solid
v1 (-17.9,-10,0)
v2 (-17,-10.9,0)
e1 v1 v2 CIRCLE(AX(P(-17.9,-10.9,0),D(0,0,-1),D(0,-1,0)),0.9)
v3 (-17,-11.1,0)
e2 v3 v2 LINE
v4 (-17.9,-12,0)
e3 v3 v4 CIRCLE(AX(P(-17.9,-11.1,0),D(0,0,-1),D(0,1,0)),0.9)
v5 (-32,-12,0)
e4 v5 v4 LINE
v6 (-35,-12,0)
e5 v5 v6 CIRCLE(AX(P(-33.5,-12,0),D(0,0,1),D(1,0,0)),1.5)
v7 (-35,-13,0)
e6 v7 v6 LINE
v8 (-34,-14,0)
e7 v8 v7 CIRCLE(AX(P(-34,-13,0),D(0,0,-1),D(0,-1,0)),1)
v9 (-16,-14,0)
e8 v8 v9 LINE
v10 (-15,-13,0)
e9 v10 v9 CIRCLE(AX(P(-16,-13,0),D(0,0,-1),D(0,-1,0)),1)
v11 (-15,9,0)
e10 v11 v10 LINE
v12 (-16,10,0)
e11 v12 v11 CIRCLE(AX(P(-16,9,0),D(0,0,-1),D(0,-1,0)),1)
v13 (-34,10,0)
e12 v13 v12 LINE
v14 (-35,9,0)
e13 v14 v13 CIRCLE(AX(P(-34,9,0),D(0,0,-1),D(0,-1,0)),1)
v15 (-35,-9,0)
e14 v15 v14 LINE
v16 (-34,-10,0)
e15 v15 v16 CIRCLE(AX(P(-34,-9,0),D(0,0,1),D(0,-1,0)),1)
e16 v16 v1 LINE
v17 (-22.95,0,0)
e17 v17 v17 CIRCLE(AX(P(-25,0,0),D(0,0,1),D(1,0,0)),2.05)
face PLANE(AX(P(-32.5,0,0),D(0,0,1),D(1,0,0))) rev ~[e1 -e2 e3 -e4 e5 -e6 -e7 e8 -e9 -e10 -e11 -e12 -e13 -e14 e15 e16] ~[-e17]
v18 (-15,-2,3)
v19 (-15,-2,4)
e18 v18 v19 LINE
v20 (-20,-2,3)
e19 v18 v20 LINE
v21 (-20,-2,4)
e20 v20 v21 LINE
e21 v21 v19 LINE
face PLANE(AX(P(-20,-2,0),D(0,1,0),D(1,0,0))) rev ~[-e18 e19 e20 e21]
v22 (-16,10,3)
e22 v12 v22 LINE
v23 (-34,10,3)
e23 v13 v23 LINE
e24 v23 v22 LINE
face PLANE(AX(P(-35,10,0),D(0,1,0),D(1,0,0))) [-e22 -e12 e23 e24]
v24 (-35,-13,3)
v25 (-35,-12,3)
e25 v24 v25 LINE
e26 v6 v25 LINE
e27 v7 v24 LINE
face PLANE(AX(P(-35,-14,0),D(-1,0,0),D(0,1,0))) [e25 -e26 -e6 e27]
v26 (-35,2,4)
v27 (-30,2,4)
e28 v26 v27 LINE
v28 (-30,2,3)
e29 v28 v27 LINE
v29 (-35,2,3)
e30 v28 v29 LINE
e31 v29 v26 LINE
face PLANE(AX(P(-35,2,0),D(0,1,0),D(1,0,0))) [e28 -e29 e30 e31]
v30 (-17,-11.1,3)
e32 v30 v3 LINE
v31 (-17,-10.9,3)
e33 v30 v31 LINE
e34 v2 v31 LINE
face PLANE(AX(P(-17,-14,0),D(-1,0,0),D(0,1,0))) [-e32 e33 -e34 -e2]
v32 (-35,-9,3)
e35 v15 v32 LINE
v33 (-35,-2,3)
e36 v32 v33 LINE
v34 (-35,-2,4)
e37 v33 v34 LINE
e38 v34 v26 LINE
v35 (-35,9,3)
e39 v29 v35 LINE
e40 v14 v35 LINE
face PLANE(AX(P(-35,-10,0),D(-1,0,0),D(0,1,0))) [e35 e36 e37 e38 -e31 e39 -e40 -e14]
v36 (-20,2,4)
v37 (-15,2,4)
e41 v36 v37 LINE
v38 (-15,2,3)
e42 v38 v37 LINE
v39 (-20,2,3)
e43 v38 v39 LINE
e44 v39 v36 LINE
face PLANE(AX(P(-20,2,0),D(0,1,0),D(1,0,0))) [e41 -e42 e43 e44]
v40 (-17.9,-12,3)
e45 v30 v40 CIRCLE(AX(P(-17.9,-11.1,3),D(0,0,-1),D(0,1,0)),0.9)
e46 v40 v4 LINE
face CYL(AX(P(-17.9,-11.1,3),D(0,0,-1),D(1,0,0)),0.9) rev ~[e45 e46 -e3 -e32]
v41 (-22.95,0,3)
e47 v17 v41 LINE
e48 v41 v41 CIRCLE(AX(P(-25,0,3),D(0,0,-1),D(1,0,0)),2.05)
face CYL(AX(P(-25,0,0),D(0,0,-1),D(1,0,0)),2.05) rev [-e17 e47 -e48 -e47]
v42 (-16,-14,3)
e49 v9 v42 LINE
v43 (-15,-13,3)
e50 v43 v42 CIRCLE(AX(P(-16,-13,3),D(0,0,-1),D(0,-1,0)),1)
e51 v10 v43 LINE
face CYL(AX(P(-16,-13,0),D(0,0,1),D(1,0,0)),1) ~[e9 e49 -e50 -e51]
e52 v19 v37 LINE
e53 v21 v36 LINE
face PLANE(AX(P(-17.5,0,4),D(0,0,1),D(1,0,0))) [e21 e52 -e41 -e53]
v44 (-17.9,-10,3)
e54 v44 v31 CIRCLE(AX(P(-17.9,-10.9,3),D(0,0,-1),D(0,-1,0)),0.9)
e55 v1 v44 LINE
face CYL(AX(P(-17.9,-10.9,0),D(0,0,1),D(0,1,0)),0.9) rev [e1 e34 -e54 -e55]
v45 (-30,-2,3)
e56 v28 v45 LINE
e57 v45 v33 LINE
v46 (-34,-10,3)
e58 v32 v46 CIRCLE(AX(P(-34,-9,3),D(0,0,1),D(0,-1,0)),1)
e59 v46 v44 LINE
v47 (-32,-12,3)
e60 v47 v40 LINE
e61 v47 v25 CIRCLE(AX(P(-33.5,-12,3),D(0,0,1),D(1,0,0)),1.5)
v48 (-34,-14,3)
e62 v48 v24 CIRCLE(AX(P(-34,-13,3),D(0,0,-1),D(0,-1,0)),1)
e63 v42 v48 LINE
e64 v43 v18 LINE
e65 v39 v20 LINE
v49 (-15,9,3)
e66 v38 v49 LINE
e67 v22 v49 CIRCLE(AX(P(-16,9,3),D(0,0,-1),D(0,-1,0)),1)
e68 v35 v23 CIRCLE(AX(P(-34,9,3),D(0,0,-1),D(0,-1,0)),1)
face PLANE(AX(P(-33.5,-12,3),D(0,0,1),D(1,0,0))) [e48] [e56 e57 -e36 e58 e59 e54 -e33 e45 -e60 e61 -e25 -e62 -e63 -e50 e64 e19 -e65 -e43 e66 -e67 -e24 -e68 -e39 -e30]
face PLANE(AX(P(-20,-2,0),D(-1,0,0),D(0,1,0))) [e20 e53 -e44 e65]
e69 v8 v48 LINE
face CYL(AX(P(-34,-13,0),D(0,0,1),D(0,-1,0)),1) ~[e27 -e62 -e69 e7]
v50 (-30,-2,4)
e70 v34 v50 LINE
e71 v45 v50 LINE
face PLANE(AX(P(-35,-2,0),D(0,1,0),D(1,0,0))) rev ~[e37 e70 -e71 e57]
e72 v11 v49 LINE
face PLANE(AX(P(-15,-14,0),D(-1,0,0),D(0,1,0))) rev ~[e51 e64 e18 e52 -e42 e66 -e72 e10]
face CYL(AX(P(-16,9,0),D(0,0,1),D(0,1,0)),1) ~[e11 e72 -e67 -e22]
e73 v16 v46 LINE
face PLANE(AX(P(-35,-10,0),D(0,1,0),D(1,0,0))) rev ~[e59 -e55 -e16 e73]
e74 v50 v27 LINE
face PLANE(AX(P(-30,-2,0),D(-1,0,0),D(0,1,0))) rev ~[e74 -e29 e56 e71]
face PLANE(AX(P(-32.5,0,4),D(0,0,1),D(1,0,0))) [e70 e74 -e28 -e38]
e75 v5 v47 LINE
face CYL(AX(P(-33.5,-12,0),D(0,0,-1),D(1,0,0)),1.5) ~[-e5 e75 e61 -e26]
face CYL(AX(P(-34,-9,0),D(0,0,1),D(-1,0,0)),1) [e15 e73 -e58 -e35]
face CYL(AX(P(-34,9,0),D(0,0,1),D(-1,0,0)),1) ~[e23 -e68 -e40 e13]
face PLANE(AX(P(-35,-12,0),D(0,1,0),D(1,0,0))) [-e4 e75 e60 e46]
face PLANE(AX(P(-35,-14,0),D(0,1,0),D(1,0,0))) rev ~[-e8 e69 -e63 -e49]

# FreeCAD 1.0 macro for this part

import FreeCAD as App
import Part
import Sketcher

V = App.Vector


def edges_at(feature, points):
    """Names of the edges that pass closest to the given points."""
    edges = feature.Shape.Edges
    near = lambda p: min(range(len(edges)), key=lambda i: edges[i].distToShape(Part.Vertex(*p))[0])
    return sorted({f"Edge{near(p) + 1}" for p in points})

doc = App.newDocument("Part")
body = doc.addObject("PartDesign::Body", "Body")

# Sketch on XY plane
sketch1 = body.newObject("Sketcher::SketchObject", "Sketch")
sketch1.AttachmentSupport = (doc.getObject("XY_Plane"), [""])
sketch1.MapMode = "FlatFace"
sketch1.addGeometry(Part.Circle(V(0, 0, 0), V(0, 0, 1), 2.05), False)
sketch1.addConstraint(Sketcher.Constraint("Coincident", 0, 3, -1, 1))
sketch1.addConstraint(Sketcher.Constraint("Diameter", 0, 4.1))
pad1 = body.newObject("PartDesign::Pad", "Pad")
pad1.Profile = sketch1
pad1.Length = 10
body2 = doc.addObject("PartDesign::Body", "Body001")

# Sketch on XY plane
sketch2 = body2.newObject("Sketcher::SketchObject", "Sketch001")
sketch2.AttachmentSupport = (doc.getObject("XY_Plane001"), [""])
sketch2.MapMode = "FlatFace"
sketch2.addGeometry(Part.LineSegment(V(8, -10, 0), V(8, -14, 0)), False)
sketch2.addGeometry(Part.LineSegment(V(8, -14, 0), V(10, -14, 0)), False)
sketch2.addGeometry(Part.LineSegment(V(10, -14, 0), V(10, -10, 0)), False)
sketch2.addGeometry(Part.LineSegment(V(10, -10, 0), V(8, -10, 0)), False)
sketch2.addConstraint(Sketcher.Constraint("Coincident", 0, 2, 1, 1))
sketch2.addConstraint(Sketcher.Constraint("Coincident", 1, 2, 2, 1))
sketch2.addConstraint(Sketcher.Constraint("Coincident", 2, 2, 3, 1))
sketch2.addConstraint(Sketcher.Constraint("Coincident", 3, 2, 0, 1))
sketch2.addConstraint(Sketcher.Constraint("Vertical", 0))
sketch2.addConstraint(Sketcher.Constraint("Horizontal", 1))
sketch2.addConstraint(Sketcher.Constraint("Vertical", 2))
sketch2.addConstraint(Sketcher.Constraint("Horizontal", 3))
sketch2.addConstraint(Sketcher.Constraint("DistanceX", 1, 1, 1, 2, 2.0))
sketch2.addConstraint(Sketcher.Constraint("DistanceY", 0, 2, 0, 1, 4.0))
sketch2.addConstraint(Sketcher.Constraint("DistanceX", -1, 1, 0, 2, 8.0))
sketch2.addConstraint(Sketcher.Constraint("DistanceY", 0, 2, -1, 1, 14.0))
pad2 = body2.newObject("PartDesign::Pad", "Pad001")
pad2.Profile = sketch2
pad2.Length = 3
body3 = doc.addObject("PartDesign::Body", "Body002")

# Sketch on XY plane
sketch3 = body3.newObject("Sketcher::SketchObject", "Sketch002")
sketch3.AttachmentSupport = (doc.getObject("XY_Plane002"), [""])
sketch3.MapMode = "FlatFace"
sketch3.addGeometry(Part.LineSegment(V(-10, -12, 0), V(-10, -14, 0)), False)
sketch3.addGeometry(Part.LineSegment(V(-10, -14, 0), V(10, -14, 0)), False)
sketch3.addGeometry(Part.LineSegment(V(10, -14, 0), V(10, -12, 0)), False)
sketch3.addGeometry(Part.LineSegment(V(10, -12, 0), V(-10, -12, 0)), False)
sketch3.addConstraint(Sketcher.Constraint("Coincident", 0, 2, 1, 1))
sketch3.addConstraint(Sketcher.Constraint("Coincident", 1, 2, 2, 1))
sketch3.addConstraint(Sketcher.Constraint("Coincident", 2, 2, 3, 1))
sketch3.addConstraint(Sketcher.Constraint("Coincident", 3, 2, 0, 1))
sketch3.addConstraint(Sketcher.Constraint("Vertical", 0))
sketch3.addConstraint(Sketcher.Constraint("Horizontal", 1))
sketch3.addConstraint(Sketcher.Constraint("Vertical", 2))
sketch3.addConstraint(Sketcher.Constraint("Horizontal", 3))
sketch3.addConstraint(Sketcher.Constraint("DistanceX", 1, 1, 1, 2, 20.0))
sketch3.addConstraint(Sketcher.Constraint("DistanceY", 0, 2, 0, 1, 2.0))
sketch3.addConstraint(Sketcher.Constraint("DistanceX", 0, 2, -1, 1, 10.0))
sketch3.addConstraint(Sketcher.Constraint("DistanceY", 0, 2, -1, 1, 14.0))
pad3 = body3.newObject("PartDesign::Pad", "Pad002")
pad3.Profile = sketch3
pad3.Length = 3
body4 = doc.addObject("PartDesign::Body", "Body003")

# Sketch on XY plane
sketch4 = body4.newObject("Sketcher::SketchObject", "Sketch003")
sketch4.AttachmentSupport = (doc.getObject("XY_Plane003"), [""])
sketch4.MapMode = "FlatFace"
sketch4.addGeometry(Part.Circle(V(-8.5, -12, 0), V(0, 0, 1), 1.5), False)
sketch4.addConstraint(Sketcher.Constraint("Diameter", 0, 3.0))
sketch4.addConstraint(Sketcher.Constraint("DistanceY", 0, 3, -1, 1, 12.0))
sketch4.addConstraint(Sketcher.Constraint("DistanceX", 0, 3, -1, 1, 8.5))
pad4 = body4.newObject("PartDesign::Pad", "Pad003")
pad4.Profile = sketch4
pad4.Length = 3
body5 = doc.addObject("PartDesign::Body", "Body004")

# Sketch on XY plane
sketch5 = body5.newObject("Sketcher::SketchObject", "Sketch004")
sketch5.AttachmentSupport = (doc.getObject("XY_Plane004"), [""])
sketch5.MapMode = "FlatFace"
sketch5.addGeometry(Part.LineSegment(V(5, 2, 0), V(5, -2, 0)), False)
sketch5.addGeometry(Part.LineSegment(V(5, -2, 0), V(10, -2, 0)), False)
sketch5.addGeometry(Part.LineSegment(V(10, -2, 0), V(10, 2, 0)), False)
sketch5.addGeometry(Part.LineSegment(V(10, 2, 0), V(5, 2, 0)), False)
sketch5.addConstraint(Sketcher.Constraint("Coincident", 0, 2, 1, 1))
sketch5.addConstraint(Sketcher.Constraint("Coincident", 1, 2, 2, 1))
sketch5.addConstraint(Sketcher.Constraint("Coincident", 2, 2, 3, 1))
sketch5.addConstraint(Sketcher.Constraint("Coincident", 3, 2, 0, 1))
sketch5.addConstraint(Sketcher.Constraint("Vertical", 0))
sketch5.addConstraint(Sketcher.Constraint("Horizontal", 1))
sketch5.addConstraint(Sketcher.Constraint("Vertical", 2))
sketch5.addConstraint(Sketcher.Constraint("Horizontal", 3))
sketch5.addConstraint(Sketcher.Constraint("DistanceX", 1, 1, 1, 2, 5.0))
sketch5.addConstraint(Sketcher.Constraint("DistanceY", 0, 2, 0, 1, 4.0))
sketch5.addConstraint(Sketcher.Constraint("DistanceX", -1, 1, 0, 2, 5.0))
sketch5.addConstraint(Sketcher.Constraint("DistanceY", 0, 2, -1, 1, 2.0))
pad5 = body5.newObject("PartDesign::Pad", "Pad004")
pad5.Profile = sketch5
pad5.Length = 4
body6 = doc.addObject("PartDesign::Body", "Body005")

# Sketch on XY plane
sketch6 = body6.newObject("Sketcher::SketchObject", "Sketch005")
sketch6.AttachmentSupport = (doc.getObject("XY_Plane005"), [""])
sketch6.MapMode = "FlatFace"
sketch6.addGeometry(Part.LineSegment(V(-10, 2, 0), V(-10, -2, 0)), False)
sketch6.addGeometry(Part.LineSegment(V(-10, -2, 0), V(-5, -2, 0)), False)
sketch6.addGeometry(Part.LineSegment(V(-5, -2, 0), V(-5, 2, 0)), False)
sketch6.addGeometry(Part.LineSegment(V(-5, 2, 0), V(-10, 2, 0)), False)
sketch6.addConstraint(Sketcher.Constraint("Coincident", 0, 2, 1, 1))
sketch6.addConstraint(Sketcher.Constraint("Coincident", 1, 2, 2, 1))
sketch6.addConstraint(Sketcher.Constraint("Coincident", 2, 2, 3, 1))
sketch6.addConstraint(Sketcher.Constraint("Coincident", 3, 2, 0, 1))
sketch6.addConstraint(Sketcher.Constraint("Vertical", 0))
sketch6.addConstraint(Sketcher.Constraint("Horizontal", 1))
sketch6.addConstraint(Sketcher.Constraint("Vertical", 2))
sketch6.addConstraint(Sketcher.Constraint("Horizontal", 3))
sketch6.addConstraint(Sketcher.Constraint("DistanceX", 1, 1, 1, 2, 5.0))
sketch6.addConstraint(Sketcher.Constraint("DistanceY", 0, 2, 0, 1, 4.0))
sketch6.addConstraint(Sketcher.Constraint("DistanceX", 0, 2, -1, 1, 10.0))
sketch6.addConstraint(Sketcher.Constraint("DistanceY", 0, 2, -1, 1, 2.0))
pad6 = body6.newObject("PartDesign::Pad", "Pad005")
pad6.Profile = sketch6
pad6.Length = 4
body7 = doc.addObject("PartDesign::Body", "Body006")

# Sketch on XY plane
sketch7 = body7.newObject("Sketcher::SketchObject", "Sketch006")
sketch7.AttachmentSupport = (doc.getObject("XY_Plane006"), [""])
sketch7.MapMode = "FlatFace"
sketch7.addGeometry(Part.LineSegment(V(-10, 10, 0), V(-10, -10, 0)), False)
sketch7.addGeometry(Part.LineSegment(V(-10, -10, 0), V(10, -10, 0)), False)
sketch7.addGeometry(Part.LineSegment(V(10, -10, 0), V(10, 10, 0)), False)
sketch7.addGeometry(Part.LineSegment(V(10, 10, 0), V(-10, 10, 0)), False)
sketch7.addConstraint(Sketcher.Constraint("Coincident", 0, 2, 1, 1))
sketch7.addConstraint(Sketcher.Constraint("Coincident", 1, 2, 2, 1))
sketch7.addConstraint(Sketcher.Constraint("Coincident", 2, 2, 3, 1))
sketch7.addConstraint(Sketcher.Constraint("Coincident", 3, 2, 0, 1))
sketch7.addConstraint(Sketcher.Constraint("Vertical", 0))
sketch7.addConstraint(Sketcher.Constraint("Horizontal", 1))
sketch7.addConstraint(Sketcher.Constraint("Vertical", 2))
sketch7.addConstraint(Sketcher.Constraint("Horizontal", 3))
sketch7.addConstraint(Sketcher.Constraint("Symmetric", 0, 2, 2, 2, -1, 1))
sketch7.addConstraint(Sketcher.Constraint("Equal", 3, 0))
sketch7.addConstraint(Sketcher.Constraint("DistanceX", 1, 1, 1, 2, 20.0))
pad7 = body7.newObject("PartDesign::Pad", "Pad006")
pad7.Profile = sketch7
pad7.Length = 3
doc.recompute()

boolean = body7.newObject("PartDesign::Boolean", "Boolean")
boolean.Type = "Fuse"
boolean.addObjects([body2])
doc.recompute()

boolean2 = body7.newObject("PartDesign::Boolean", "Boolean001")
boolean2.Type = "Fuse"
boolean2.addObjects([body3])
doc.recompute()

boolean3 = body7.newObject("PartDesign::Boolean", "Boolean002")
boolean3.Type = "Fuse"
boolean3.addObjects([body4])
doc.recompute()

boolean4 = body7.newObject("PartDesign::Boolean", "Boolean003")
boolean4.Type = "Fuse"
boolean4.addObjects([body5])
doc.recompute()

boolean5 = body7.newObject("PartDesign::Boolean", "Boolean004")
boolean5.Type = "Fuse"
boolean5.addObjects([body6])
doc.recompute()

boolean6 = body7.newObject("PartDesign::Boolean", "Boolean005")
boolean6.Type = "Cut"
boolean6.addObjects([body])
doc.recompute()

fillet = body7.newObject("PartDesign::Fillet", "Fillet")
fillet.Base = (boolean6, edges_at(boolean6, [
    (-10, -10, 1.5),
    (-10, 10, 1.5),
    (10, 10, 1.5),
    (10, -14, 1.5),
    (-10, -14, 1.5),
]))
fillet.Radius = 1
doc.recompute()

fillet2 = body7.newObject("PartDesign::Fillet", "Fillet001")
fillet2.Base = (fillet, edges_at(fillet, [(8, -10, 1.5), (8, -12, 1.5)]))
fillet2.Radius = 0.9
body8 = doc.addObject("PartDesign::Body", "Body007")
doc.recompute()

body7.Placement = App.Placement(V(-25, 0, 0), App.Rotation(V(0, 0, 1), 0))
boolean7 = body8.newObject("PartDesign::Boolean", "Boolean006")
boolean7.Type = "Fuse"
boolean7.addObjects([body7])

doc.recompute()
